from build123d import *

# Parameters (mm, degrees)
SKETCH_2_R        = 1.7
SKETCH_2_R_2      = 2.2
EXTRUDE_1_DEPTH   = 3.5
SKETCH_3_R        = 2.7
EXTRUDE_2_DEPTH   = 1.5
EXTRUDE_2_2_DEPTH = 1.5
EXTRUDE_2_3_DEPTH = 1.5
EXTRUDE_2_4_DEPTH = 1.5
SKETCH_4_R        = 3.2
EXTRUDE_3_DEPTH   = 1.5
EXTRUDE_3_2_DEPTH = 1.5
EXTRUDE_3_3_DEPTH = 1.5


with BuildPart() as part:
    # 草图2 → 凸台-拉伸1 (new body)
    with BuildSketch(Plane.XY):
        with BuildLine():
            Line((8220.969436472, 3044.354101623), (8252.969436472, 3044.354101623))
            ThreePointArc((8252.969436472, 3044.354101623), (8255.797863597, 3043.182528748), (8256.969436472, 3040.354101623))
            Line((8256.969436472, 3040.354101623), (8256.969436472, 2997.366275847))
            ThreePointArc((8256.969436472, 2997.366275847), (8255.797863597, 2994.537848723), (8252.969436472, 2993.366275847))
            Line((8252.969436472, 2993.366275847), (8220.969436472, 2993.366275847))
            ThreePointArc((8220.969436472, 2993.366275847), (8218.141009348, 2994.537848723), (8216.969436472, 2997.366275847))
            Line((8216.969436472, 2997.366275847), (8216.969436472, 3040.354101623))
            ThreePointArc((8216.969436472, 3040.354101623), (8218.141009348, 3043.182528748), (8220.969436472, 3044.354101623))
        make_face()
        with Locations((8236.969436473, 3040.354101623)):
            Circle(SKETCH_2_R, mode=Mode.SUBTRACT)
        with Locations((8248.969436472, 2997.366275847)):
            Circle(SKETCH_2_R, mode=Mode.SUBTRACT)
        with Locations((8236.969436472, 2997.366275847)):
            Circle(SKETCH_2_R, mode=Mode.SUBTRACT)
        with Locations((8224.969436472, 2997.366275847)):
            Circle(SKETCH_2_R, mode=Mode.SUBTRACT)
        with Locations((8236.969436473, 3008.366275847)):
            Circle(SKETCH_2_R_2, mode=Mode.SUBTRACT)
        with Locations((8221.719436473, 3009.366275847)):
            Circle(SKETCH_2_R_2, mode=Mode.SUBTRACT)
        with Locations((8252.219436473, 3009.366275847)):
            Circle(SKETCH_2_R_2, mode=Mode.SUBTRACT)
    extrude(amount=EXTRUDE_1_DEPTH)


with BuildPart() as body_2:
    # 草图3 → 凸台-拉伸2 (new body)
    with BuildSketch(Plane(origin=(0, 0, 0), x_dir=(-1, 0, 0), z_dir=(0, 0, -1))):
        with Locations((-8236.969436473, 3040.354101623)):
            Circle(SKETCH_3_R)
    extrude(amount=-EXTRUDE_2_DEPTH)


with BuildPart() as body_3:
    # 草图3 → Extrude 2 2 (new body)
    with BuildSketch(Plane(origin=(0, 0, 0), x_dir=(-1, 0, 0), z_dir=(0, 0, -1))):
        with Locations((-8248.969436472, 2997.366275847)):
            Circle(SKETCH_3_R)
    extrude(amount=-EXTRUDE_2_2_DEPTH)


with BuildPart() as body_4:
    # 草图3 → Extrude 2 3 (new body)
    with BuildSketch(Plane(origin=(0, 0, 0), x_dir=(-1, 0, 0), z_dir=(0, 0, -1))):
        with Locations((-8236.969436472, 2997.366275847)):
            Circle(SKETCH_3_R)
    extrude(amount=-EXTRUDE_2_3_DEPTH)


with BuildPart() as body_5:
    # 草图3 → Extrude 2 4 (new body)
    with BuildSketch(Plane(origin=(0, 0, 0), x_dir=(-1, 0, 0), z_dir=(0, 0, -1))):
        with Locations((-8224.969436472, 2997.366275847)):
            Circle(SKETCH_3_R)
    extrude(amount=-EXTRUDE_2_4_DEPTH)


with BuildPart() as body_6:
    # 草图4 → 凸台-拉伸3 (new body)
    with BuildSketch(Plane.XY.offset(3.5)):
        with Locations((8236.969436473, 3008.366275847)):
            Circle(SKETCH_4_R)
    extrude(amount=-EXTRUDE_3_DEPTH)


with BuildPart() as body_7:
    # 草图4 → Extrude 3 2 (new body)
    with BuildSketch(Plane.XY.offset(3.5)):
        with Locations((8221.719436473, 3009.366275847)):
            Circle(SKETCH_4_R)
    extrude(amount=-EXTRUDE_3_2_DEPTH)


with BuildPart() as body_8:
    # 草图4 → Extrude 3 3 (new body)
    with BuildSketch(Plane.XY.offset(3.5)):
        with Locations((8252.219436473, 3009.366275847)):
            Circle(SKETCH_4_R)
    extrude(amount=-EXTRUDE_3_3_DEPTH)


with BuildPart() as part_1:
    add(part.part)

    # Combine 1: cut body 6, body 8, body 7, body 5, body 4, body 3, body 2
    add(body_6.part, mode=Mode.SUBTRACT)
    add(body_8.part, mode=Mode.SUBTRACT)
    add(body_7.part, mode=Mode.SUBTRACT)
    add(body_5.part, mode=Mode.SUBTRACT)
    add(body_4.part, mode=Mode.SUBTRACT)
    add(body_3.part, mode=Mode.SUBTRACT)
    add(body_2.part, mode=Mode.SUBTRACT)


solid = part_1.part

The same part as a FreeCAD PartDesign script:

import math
import FreeCAD as App
import Part
import Sketcher

V = App.Vector
Q = App.Units.Quantity

doc = App.newDocument("Part")
body = doc.addObject("PartDesign::Body", "Body")

# Sketch on XY plane
sketch1 = body.newObject("Sketcher::SketchObject", "Sketch")
sketch1.AttachmentSupport = (doc.getObject("XY_Plane"), [""])
sketch1.MapMode = "FlatFace"
sketch1.addGeometry(Part.LineSegment(V(8253, 3044.4, 0), V(8221, 3044.4, 0)), False)
sketch1.addGeometry(Part.ArcOfCircle(Part.Circle(V(8221, 3040.4, 0), V(0, 0, 1), 4), math.radians(90), math.radians(180)), False)
sketch1.addGeometry(Part.LineSegment(V(8217, 3040.4, 0), V(8217, 2997.4, 0)), False)
sketch1.addGeometry(Part.ArcOfCircle(Part.Circle(V(8221, 2997.4, 0), V(0, 0, 1), 4), math.radians(-180), math.radians(-90)), False)
sketch1.addGeometry(Part.LineSegment(V(8221, 2993.4, 0), V(8253, 2993.4, 0)), False)
sketch1.addGeometry(Part.ArcOfCircle(Part.Circle(V(8253, 2997.4, 0), V(0, 0, 1), 4), math.radians(-90), math.radians(0)), False)
sketch1.addGeometry(Part.LineSegment(V(8257, 2997.4, 0), V(8257, 3040.4, 0)), False)
sketch1.addGeometry(Part.ArcOfCircle(Part.Circle(V(8253, 3040.4, 0), V(0, 0, 1), 4), math.radians(0), math.radians(90)), False)
sketch1.addGeometry(Part.Circle(V(8249, 2997.4, 0), V(0, 0, 1), 1.7), False)
sketch1.addGeometry(Part.Circle(V(8252.2, 3009.4, 0), V(0, 0, 1), 2.2), False)
sketch1.addGeometry(Part.Circle(V(8237, 2997.4, 0), V(0, 0, 1), 1.7), False)
sketch1.addGeometry(Part.Circle(V(8225, 2997.4, 0), V(0, 0, 1), 1.7), False)
sketch1.addGeometry(Part.Circle(V(8237, 3008.4, 0), V(0, 0, 1), 2.2), False)
sketch1.addGeometry(Part.Circle(V(8221.7, 3009.4, 0), V(0, 0, 1), 2.2), False)
sketch1.addGeometry(Part.Circle(V(8237, 3040.4, 0), V(0, 0, 1), 1.7), False)
sketch1.addConstraint(Sketcher.Constraint("Tangent", 0, 2, 1, 1))
sketch1.addConstraint(Sketcher.Constraint("Tangent", 1, 2, 2, 1))
sketch1.addConstraint(Sketcher.Constraint("Tangent", 2, 2, 3, 1))
sketch1.addConstraint(Sketcher.Constraint("Tangent", 3, 2, 4, 1))
sketch1.addConstraint(Sketcher.Constraint("Tangent", 4, 2, 5, 1))
sketch1.addConstraint(Sketcher.Constraint("Tangent", 5, 2, 6, 1))
sketch1.addConstraint(Sketcher.Constraint("Tangent", 6, 2, 7, 1))
sketch1.addConstraint(Sketcher.Constraint("Tangent", 7, 2, 0, 1))
sketch1.addConstraint(Sketcher.Constraint("Horizontal", 0))
sketch1.addConstraint(Sketcher.Constraint("Vertical", 2))
sketch1.addConstraint(Sketcher.Constraint("Horizontal", 4))
sketch1.addConstraint(Sketcher.Constraint("Vertical", 6))
sketch1.addConstraint(Sketcher.Constraint("Equal", 1, 3))
sketch1.addConstraint(Sketcher.Constraint("Equal", 3, 5))
sketch1.addConstraint(Sketcher.Constraint("Equal", 5, 7))
sketch1.addConstraint(Sketcher.Constraint("Equal", 8, 10))
sketch1.addConstraint(Sketcher.Constraint("Equal", 10, 11))
sketch1.addConstraint(Sketcher.Constraint("Equal", 9, 12))
sketch1.addConstraint(Sketcher.Constraint("Equal", 12, 13))
sketch1.addConstraint(Sketcher.Constraint("Equal", 11, 14))
sketch1.addConstraint(Sketcher.Constraint("Horizontal", 5, 3, 8, 3))
sketch1.addConstraint(Sketcher.Constraint("Horizontal", 8, 3, 10, 3))
sketch1.addConstraint(Sketcher.Constraint("Horizontal", 10, 3, 11, 3))
sketch1.addConstraint(Sketcher.Constraint("Horizontal", 9, 3, 13, 3))
sketch1.addConstraint(Sketcher.Constraint("Horizontal", 7, 3, 14, 3))
sketch1.addConstraint(Sketcher.Constraint("Vertical", 10, 3, 12, 3))
sketch1.addConstraint(Sketcher.Constraint("Vertical", 12, 3, 14, 3))
sketch1.addConstraint(Sketcher.Constraint("Radius", 1, Q("4 mm")))
sketch1.addConstraint(Sketcher.Constraint("Diameter", 8, Q("3.4 mm")))
sketch1.addConstraint(Sketcher.Constraint("Diameter", 9, Q("4.4 mm")))
sketch1.addConstraint(Sketcher.Constraint("DistanceX", 0, 2, 0, 1, Q("32 mm")))
sketch1.addConstraint(Sketcher.Constraint("DistanceX", 8, 3, 5, 3, Q("4 mm")))
sketch1.addConstraint(Sketcher.Constraint("DistanceY", 5, 3, 9, 3, Q("12 mm")))
sketch1.addConstraint(Sketcher.Constraint("DistanceX", 10, 3, 8, 3, Q("12 mm")))
sketch1.addConstraint(Sketcher.Constraint("DistanceX", 3, 3, 11, 3, Q("4 mm")))
sketch1.addConstraint(Sketcher.Constraint("DistanceY", 10, 3, 12, 3, Q("11 mm")))
sketch1.addConstraint(Sketcher.Constraint("DistanceX", 9, 3, 5, 3, Q("0.75 mm")))
sketch1.addConstraint(Sketcher.Constraint("DistanceX", 3, 3, 13, 3, Q("0.75 mm")))
sketch1.addConstraint(Sketcher.Constraint("DistanceY", -1, 1, 1, 3, Q("3040.354102 mm")))
sketch1.addConstraint(Sketcher.Constraint("DistanceY", 2, 2, 2, 1, Q("42.987826 mm")))
sketch1.addConstraint(Sketcher.Constraint("DistanceX", -1, 1, 1, 3, Q("8220.969436 mm")))
pad1 = body.newObject("PartDesign::Pad", "Pad")
pad1.Profile = sketch1
pad1.Length = 3.5
body2 = doc.addObject("PartDesign::Body", "Body001")

# Sketch on XY plane
sketch2 = body2.newObject("Sketcher::SketchObject", "Sketch001")
sketch2.AttachmentSupport = (doc.getObject("XY_Plane001"), [""])
sketch2.MapMode = "FlatFace"
sketch2.addGeometry(Part.Circle(V(8237, 3040.4, 0), V(0, 0, 1), 2.7), False)
sketch2.addConstraint(Sketcher.Constraint("Diameter", 0, Q("5.4 mm")))
sketch2.addConstraint(Sketcher.Constraint("DistanceY", -1, 1, 0, 3, Q("3040.354102 mm")))
sketch2.addConstraint(Sketcher.Constraint("DistanceX", -1, 1, 0, 3, Q("8236.969436 mm")))
pad2 = body2.newObject("PartDesign::Pad", "Pad001")
pad2.Profile = sketch2
pad2.Length = 1.5
body3 = doc.addObject("PartDesign::Body", "Body002")

# Sketch on XY plane
sketch3 = body3.newObject("Sketcher::SketchObject", "Sketch002")
sketch3.AttachmentSupport = (doc.getObject("XY_Plane002"), [""])
sketch3.MapMode = "FlatFace"
sketch3.addGeometry(Part.Circle(V(8249, 2997.4, 0), V(0, 0, 1), 2.7), False)
sketch3.addConstraint(Sketcher.Constraint("Diameter", 0, Q("5.4 mm")))
sketch3.addConstraint(Sketcher.Constraint("DistanceX", -1, 1, 0, 3, Q("8248.969436 mm")))
sketch3.addConstraint(Sketcher.Constraint("DistanceY", -1, 1, 0, 3, Q("2997.366276 mm")))
pad3 = body3.newObject("PartDesign::Pad", "Pad002")
pad3.Profile = sketch3
pad3.Length = 1.5
body4 = doc.addObject("PartDesign::Body", "Body003")

# Sketch on XY plane
sketch4 = body4.newObject("Sketcher::SketchObject", "Sketch003")
sketch4.AttachmentSupport = (doc.getObject("XY_Plane003"), [""])
sketch4.MapMode = "FlatFace"
sketch4.addGeometry(Part.Circle(V(8237, 2997.4, 0), V(0, 0, 1), 2.7), False)
sketch4.addConstraint(Sketcher.Constraint("Diameter", 0, Q("5.4 mm")))
sketch4.addConstraint(Sketcher.Constraint("DistanceX", -1, 1, 0, 3, Q("8236.969436 mm")))
sketch4.addConstraint(Sketcher.Constraint("DistanceY", -1, 1, 0, 3, Q("2997.366276 mm")))
pad4 = body4.newObject("PartDesign::Pad", "Pad003")
pad4.Profile = sketch4
pad4.Length = 1.5
body5 = doc.addObject("PartDesign::Body", "Body004")

# Sketch on XY plane
sketch5 = body5.newObject("Sketcher::SketchObject", "Sketch004")
sketch5.AttachmentSupport = (doc.getObject("XY_Plane004"), [""])
sketch5.MapMode = "FlatFace"
sketch5.addGeometry(Part.Circle(V(8225, 2997.4, 0), V(0, 0, 1), 2.7), False)
sketch5.addConstraint(Sketcher.Constraint("Diameter", 0, Q("5.4 mm")))
sketch5.addConstraint(Sketcher.Constraint("DistanceX", -1, 1, 0, 3, Q("8224.969436 mm")))
sketch5.addConstraint(Sketcher.Constraint("DistanceY", -1, 1, 0, 3, Q("2997.366276 mm")))
pad5 = body5.newObject("PartDesign::Pad", "Pad004")
pad5.Profile = sketch5
pad5.Length = 1.5
body6 = doc.addObject("PartDesign::Body", "Body005")

# Sketch on XY plane
sketch6 = body6.newObject("Sketcher::SketchObject", "Sketch005")
sketch6.AttachmentSupport = (doc.getObject("XY_Plane005"), [""])
sketch6.MapMode = "FlatFace"
sketch6.AttachmentOffset = App.Placement(V(0, 0, 3.5), App.Rotation())
sketch6.addGeometry(Part.Circle(V(8237, 3008.4, 0), V(0, 0, 1), 3.2), False)
sketch6.addConstraint(Sketcher.Constraint("Diameter", 0, Q("6.4 mm")))
sketch6.addConstraint(Sketcher.Constraint("DistanceX", -1, 1, 0, 3, Q("8236.969436 mm")))
sketch6.addConstraint(Sketcher.Constraint("DistanceY", -1, 1, 0, 3, Q("3008.366276 mm")))
pad6 = body6.newObject("PartDesign::Pad", "Pad005")
pad6.Profile = sketch6
pad6.Length = 1.5
pad6.Reversed = True
body7 = doc.addObject("PartDesign::Body", "Body006")

# Sketch on XY plane
sketch7 = body7.newObject("Sketcher::SketchObject", "Sketch006")
sketch7.AttachmentSupport = (doc.getObject("XY_Plane006"), [""])
sketch7.MapMode = "FlatFace"
sketch7.AttachmentOffset = App.Placement(V(0, 0, 3.5), App.Rotation())
sketch7.addGeometry(Part.Circle(V(8221.7, 3009.4, 0), V(0, 0, 1), 3.2), False)
sketch7.addConstraint(Sketcher.Constraint("Diameter", 0, Q("6.4 mm")))
sketch7.addConstraint(Sketcher.Constraint("DistanceX", -1, 1, 0, 3, Q("8221.719436 mm")))
sketch7.addConstraint(Sketcher.Constraint("DistanceY", -1, 1, 0, 3, Q("3009.366276 mm")))
pad7 = body7.newObject("PartDesign::Pad", "Pad006")
pad7.Profile = sketch7
pad7.Length = 1.5
pad7.Reversed = True
body8 = doc.addObject("PartDesign::Body", "Body007")

# Sketch on XY plane
sketch8 = body8.newObject("Sketcher::SketchObject", "Sketch007")
sketch8.AttachmentSupport = (doc.getObject("XY_Plane007"), [""])
sketch8.MapMode = "FlatFace"
sketch8.AttachmentOffset = App.Placement(V(0, 0, 3.5), App.Rotation())
sketch8.addGeometry(Part.Circle(V(8252.2, 3009.4, 0), V(0, 0, 1), 3.2), False)
sketch8.addConstraint(Sketcher.Constraint("Diameter", 0, Q("6.4 mm")))
sketch8.addConstraint(Sketcher.Constraint("DistanceX", -1, 1, 0, 3, Q("8252.219436 mm")))
sketch8.addConstraint(Sketcher.Constraint("DistanceY", -1, 1, 0, 3, Q("3009.366276 mm")))
pad8 = body8.newObject("PartDesign::Pad", "Pad007")
pad8.Profile = sketch8
pad8.Length = 1.5
pad8.Reversed = True
doc.recompute()

boolean = body.newObject("PartDesign::Boolean", "Boolean")
boolean.Type = "Cut"
boolean.addObjects([body6])
doc.recompute()

boolean2 = body.newObject("PartDesign::Boolean", "Boolean001")
boolean2.Type = "Cut"
boolean2.addObjects([body8])
doc.recompute()

boolean3 = body.newObject("PartDesign::Boolean", "Boolean002")
boolean3.Type = "Cut"
boolean3.addObjects([body7])
doc.recompute()

boolean4 = body.newObject("PartDesign::Boolean", "Boolean003")
boolean4.Type = "Cut"
boolean4.addObjects([body5])
doc.recompute()

boolean5 = body.newObject("PartDesign::Boolean", "Boolean004")
boolean5.Type = "Cut"
boolean5.addObjects([body4])
doc.recompute()

boolean6 = body.newObject("PartDesign::Boolean", "Boolean005")
boolean6.Type = "Cut"
boolean6.addObjects([body3])
doc.recompute()

boolean7 = body.newObject("PartDesign::Boolean", "Boolean006")
boolean7.Type = "Cut"
boolean7.addObjects([body2])

doc.recompute()
